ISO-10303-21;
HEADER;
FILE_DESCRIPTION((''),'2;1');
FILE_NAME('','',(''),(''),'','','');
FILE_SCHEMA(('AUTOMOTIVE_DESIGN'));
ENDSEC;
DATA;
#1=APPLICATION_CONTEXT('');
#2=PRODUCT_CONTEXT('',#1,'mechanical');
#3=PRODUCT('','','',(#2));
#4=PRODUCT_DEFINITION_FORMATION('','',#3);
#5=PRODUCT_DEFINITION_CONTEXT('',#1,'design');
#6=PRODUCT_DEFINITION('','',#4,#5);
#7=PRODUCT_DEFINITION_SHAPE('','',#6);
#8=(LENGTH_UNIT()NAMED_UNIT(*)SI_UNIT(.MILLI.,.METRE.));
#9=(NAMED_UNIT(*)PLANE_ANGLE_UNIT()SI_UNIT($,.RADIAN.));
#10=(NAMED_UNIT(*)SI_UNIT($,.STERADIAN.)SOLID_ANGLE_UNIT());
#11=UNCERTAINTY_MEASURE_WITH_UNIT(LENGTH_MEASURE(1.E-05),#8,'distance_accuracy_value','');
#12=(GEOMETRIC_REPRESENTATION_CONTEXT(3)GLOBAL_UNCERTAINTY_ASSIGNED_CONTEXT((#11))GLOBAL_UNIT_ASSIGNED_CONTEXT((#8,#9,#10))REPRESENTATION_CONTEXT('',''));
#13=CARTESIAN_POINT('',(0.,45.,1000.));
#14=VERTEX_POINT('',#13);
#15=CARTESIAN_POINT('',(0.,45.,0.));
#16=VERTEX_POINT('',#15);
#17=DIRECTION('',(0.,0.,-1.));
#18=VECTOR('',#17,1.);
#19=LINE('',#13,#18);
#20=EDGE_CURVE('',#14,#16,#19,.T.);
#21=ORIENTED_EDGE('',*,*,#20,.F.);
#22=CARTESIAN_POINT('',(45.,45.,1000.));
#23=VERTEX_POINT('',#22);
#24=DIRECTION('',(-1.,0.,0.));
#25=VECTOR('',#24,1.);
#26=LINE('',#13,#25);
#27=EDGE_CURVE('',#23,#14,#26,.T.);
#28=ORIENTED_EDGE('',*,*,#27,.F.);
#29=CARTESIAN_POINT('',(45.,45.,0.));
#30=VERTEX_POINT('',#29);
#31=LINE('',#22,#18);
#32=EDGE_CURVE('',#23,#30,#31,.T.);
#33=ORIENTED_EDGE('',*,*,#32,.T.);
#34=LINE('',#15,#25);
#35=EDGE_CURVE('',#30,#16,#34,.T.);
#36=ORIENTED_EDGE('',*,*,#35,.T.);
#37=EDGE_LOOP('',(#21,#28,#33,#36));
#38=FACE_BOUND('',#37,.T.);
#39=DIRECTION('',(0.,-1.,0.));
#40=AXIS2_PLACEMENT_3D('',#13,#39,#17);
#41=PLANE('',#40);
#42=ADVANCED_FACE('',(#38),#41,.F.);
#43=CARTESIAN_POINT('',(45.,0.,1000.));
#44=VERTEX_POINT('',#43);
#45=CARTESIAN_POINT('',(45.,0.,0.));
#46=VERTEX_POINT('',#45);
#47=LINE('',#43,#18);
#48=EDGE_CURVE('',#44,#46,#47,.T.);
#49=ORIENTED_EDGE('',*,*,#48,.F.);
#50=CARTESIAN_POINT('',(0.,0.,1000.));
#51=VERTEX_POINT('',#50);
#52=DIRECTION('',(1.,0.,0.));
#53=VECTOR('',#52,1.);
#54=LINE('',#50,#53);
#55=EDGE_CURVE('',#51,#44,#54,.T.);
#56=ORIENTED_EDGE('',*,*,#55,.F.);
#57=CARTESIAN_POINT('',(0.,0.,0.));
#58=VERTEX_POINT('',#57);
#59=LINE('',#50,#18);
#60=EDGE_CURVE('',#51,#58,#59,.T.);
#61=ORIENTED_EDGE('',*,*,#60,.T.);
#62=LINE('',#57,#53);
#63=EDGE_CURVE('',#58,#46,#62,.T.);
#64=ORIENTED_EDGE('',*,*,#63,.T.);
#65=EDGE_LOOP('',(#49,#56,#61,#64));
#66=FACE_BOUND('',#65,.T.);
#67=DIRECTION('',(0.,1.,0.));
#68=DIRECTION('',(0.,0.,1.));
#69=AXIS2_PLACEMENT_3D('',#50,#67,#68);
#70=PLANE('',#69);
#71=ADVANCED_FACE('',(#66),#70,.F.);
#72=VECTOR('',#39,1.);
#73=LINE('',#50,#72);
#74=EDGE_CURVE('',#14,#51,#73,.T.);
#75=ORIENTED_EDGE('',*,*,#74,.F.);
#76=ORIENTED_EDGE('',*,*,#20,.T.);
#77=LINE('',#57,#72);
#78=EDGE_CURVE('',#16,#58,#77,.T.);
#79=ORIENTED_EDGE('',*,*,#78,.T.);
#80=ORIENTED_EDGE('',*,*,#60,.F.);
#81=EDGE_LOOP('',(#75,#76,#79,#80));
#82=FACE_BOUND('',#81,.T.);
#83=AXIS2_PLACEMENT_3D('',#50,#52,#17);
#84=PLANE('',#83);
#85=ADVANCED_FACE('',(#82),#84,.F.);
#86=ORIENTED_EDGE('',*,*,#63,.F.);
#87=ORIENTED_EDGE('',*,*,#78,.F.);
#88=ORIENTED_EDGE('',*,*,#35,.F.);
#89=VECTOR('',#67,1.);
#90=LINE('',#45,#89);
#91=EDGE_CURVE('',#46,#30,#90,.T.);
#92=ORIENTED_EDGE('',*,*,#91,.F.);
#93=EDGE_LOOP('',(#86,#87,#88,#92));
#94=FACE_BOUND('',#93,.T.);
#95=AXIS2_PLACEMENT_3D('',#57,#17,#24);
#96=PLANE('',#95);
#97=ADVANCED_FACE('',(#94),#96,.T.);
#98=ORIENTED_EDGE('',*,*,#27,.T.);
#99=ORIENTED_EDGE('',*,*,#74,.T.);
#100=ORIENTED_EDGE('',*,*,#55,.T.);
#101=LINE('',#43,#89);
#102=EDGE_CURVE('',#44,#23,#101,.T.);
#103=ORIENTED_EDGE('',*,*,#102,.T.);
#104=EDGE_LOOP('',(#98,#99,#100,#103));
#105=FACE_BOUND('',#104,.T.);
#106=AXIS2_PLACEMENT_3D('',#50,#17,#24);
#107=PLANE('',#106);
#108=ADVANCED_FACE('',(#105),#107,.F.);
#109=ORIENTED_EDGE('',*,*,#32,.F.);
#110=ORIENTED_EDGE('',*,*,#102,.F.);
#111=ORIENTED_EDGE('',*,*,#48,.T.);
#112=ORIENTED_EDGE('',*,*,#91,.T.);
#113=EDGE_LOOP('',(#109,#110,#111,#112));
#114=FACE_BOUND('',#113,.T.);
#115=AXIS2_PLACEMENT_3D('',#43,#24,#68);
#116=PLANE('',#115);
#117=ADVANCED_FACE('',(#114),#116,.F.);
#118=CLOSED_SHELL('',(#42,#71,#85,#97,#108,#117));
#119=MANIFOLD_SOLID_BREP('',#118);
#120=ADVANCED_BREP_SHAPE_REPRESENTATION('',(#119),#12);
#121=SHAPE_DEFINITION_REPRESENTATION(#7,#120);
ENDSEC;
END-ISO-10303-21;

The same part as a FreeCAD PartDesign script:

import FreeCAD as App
import Part
import Sketcher
from FreeCAD import Vector
Q = App.Units.Quantity

doc = App.newDocument("Part")
body = doc.addObject("PartDesign::Body", "Body")

sketch1 = doc.addObject("Sketcher::SketchObject", "Sketch")
body.addObject(sketch1)
sketch1.AttachmentSupport = (doc.XY_Plane, [""])
sketch1.MapMode = "FlatFace"
sketch1.addGeometry([
    Part.LineSegment(Vector(0, 45, 0), Vector(0, 0, 0)),
    Part.LineSegment(Vector(0, 0, 0), Vector(45, 0, 0)),
    Part.LineSegment(Vector(45, 0, 0), Vector(45, 45, 0)),
    Part.LineSegment(Vector(45, 45, 0), Vector(0, 45, 0)),
], False)
sketch1.addConstraint([
    Sketcher.Constraint("Coincident", 0, 2, 1, 1),
    Sketcher.Constraint("Coincident", 1, 2, 2, 1),
    Sketcher.Constraint("Coincident", 2, 2, 3, 1),
    Sketcher.Constraint("Coincident", 3, 2, 0, 1),
    Sketcher.Constraint("Vertical", 0),
    Sketcher.Constraint("Horizontal", 1),
    Sketcher.Constraint("Vertical", 2),
    Sketcher.Constraint("Horizontal", 3),
    Sketcher.Constraint("Coincident", 0, 2, -1, 1),
    Sketcher.Constraint("Equal", 3, 0),
    Sketcher.Constraint("DistanceX", 1, 1, 1, 2, Q("45 mm")),
])
pad1 = doc.addObject("PartDesign::Pad", "Pad")
body.addObject(pad1)
pad1.Profile = sketch1
pad1.Length = 1000

doc.recompute()
